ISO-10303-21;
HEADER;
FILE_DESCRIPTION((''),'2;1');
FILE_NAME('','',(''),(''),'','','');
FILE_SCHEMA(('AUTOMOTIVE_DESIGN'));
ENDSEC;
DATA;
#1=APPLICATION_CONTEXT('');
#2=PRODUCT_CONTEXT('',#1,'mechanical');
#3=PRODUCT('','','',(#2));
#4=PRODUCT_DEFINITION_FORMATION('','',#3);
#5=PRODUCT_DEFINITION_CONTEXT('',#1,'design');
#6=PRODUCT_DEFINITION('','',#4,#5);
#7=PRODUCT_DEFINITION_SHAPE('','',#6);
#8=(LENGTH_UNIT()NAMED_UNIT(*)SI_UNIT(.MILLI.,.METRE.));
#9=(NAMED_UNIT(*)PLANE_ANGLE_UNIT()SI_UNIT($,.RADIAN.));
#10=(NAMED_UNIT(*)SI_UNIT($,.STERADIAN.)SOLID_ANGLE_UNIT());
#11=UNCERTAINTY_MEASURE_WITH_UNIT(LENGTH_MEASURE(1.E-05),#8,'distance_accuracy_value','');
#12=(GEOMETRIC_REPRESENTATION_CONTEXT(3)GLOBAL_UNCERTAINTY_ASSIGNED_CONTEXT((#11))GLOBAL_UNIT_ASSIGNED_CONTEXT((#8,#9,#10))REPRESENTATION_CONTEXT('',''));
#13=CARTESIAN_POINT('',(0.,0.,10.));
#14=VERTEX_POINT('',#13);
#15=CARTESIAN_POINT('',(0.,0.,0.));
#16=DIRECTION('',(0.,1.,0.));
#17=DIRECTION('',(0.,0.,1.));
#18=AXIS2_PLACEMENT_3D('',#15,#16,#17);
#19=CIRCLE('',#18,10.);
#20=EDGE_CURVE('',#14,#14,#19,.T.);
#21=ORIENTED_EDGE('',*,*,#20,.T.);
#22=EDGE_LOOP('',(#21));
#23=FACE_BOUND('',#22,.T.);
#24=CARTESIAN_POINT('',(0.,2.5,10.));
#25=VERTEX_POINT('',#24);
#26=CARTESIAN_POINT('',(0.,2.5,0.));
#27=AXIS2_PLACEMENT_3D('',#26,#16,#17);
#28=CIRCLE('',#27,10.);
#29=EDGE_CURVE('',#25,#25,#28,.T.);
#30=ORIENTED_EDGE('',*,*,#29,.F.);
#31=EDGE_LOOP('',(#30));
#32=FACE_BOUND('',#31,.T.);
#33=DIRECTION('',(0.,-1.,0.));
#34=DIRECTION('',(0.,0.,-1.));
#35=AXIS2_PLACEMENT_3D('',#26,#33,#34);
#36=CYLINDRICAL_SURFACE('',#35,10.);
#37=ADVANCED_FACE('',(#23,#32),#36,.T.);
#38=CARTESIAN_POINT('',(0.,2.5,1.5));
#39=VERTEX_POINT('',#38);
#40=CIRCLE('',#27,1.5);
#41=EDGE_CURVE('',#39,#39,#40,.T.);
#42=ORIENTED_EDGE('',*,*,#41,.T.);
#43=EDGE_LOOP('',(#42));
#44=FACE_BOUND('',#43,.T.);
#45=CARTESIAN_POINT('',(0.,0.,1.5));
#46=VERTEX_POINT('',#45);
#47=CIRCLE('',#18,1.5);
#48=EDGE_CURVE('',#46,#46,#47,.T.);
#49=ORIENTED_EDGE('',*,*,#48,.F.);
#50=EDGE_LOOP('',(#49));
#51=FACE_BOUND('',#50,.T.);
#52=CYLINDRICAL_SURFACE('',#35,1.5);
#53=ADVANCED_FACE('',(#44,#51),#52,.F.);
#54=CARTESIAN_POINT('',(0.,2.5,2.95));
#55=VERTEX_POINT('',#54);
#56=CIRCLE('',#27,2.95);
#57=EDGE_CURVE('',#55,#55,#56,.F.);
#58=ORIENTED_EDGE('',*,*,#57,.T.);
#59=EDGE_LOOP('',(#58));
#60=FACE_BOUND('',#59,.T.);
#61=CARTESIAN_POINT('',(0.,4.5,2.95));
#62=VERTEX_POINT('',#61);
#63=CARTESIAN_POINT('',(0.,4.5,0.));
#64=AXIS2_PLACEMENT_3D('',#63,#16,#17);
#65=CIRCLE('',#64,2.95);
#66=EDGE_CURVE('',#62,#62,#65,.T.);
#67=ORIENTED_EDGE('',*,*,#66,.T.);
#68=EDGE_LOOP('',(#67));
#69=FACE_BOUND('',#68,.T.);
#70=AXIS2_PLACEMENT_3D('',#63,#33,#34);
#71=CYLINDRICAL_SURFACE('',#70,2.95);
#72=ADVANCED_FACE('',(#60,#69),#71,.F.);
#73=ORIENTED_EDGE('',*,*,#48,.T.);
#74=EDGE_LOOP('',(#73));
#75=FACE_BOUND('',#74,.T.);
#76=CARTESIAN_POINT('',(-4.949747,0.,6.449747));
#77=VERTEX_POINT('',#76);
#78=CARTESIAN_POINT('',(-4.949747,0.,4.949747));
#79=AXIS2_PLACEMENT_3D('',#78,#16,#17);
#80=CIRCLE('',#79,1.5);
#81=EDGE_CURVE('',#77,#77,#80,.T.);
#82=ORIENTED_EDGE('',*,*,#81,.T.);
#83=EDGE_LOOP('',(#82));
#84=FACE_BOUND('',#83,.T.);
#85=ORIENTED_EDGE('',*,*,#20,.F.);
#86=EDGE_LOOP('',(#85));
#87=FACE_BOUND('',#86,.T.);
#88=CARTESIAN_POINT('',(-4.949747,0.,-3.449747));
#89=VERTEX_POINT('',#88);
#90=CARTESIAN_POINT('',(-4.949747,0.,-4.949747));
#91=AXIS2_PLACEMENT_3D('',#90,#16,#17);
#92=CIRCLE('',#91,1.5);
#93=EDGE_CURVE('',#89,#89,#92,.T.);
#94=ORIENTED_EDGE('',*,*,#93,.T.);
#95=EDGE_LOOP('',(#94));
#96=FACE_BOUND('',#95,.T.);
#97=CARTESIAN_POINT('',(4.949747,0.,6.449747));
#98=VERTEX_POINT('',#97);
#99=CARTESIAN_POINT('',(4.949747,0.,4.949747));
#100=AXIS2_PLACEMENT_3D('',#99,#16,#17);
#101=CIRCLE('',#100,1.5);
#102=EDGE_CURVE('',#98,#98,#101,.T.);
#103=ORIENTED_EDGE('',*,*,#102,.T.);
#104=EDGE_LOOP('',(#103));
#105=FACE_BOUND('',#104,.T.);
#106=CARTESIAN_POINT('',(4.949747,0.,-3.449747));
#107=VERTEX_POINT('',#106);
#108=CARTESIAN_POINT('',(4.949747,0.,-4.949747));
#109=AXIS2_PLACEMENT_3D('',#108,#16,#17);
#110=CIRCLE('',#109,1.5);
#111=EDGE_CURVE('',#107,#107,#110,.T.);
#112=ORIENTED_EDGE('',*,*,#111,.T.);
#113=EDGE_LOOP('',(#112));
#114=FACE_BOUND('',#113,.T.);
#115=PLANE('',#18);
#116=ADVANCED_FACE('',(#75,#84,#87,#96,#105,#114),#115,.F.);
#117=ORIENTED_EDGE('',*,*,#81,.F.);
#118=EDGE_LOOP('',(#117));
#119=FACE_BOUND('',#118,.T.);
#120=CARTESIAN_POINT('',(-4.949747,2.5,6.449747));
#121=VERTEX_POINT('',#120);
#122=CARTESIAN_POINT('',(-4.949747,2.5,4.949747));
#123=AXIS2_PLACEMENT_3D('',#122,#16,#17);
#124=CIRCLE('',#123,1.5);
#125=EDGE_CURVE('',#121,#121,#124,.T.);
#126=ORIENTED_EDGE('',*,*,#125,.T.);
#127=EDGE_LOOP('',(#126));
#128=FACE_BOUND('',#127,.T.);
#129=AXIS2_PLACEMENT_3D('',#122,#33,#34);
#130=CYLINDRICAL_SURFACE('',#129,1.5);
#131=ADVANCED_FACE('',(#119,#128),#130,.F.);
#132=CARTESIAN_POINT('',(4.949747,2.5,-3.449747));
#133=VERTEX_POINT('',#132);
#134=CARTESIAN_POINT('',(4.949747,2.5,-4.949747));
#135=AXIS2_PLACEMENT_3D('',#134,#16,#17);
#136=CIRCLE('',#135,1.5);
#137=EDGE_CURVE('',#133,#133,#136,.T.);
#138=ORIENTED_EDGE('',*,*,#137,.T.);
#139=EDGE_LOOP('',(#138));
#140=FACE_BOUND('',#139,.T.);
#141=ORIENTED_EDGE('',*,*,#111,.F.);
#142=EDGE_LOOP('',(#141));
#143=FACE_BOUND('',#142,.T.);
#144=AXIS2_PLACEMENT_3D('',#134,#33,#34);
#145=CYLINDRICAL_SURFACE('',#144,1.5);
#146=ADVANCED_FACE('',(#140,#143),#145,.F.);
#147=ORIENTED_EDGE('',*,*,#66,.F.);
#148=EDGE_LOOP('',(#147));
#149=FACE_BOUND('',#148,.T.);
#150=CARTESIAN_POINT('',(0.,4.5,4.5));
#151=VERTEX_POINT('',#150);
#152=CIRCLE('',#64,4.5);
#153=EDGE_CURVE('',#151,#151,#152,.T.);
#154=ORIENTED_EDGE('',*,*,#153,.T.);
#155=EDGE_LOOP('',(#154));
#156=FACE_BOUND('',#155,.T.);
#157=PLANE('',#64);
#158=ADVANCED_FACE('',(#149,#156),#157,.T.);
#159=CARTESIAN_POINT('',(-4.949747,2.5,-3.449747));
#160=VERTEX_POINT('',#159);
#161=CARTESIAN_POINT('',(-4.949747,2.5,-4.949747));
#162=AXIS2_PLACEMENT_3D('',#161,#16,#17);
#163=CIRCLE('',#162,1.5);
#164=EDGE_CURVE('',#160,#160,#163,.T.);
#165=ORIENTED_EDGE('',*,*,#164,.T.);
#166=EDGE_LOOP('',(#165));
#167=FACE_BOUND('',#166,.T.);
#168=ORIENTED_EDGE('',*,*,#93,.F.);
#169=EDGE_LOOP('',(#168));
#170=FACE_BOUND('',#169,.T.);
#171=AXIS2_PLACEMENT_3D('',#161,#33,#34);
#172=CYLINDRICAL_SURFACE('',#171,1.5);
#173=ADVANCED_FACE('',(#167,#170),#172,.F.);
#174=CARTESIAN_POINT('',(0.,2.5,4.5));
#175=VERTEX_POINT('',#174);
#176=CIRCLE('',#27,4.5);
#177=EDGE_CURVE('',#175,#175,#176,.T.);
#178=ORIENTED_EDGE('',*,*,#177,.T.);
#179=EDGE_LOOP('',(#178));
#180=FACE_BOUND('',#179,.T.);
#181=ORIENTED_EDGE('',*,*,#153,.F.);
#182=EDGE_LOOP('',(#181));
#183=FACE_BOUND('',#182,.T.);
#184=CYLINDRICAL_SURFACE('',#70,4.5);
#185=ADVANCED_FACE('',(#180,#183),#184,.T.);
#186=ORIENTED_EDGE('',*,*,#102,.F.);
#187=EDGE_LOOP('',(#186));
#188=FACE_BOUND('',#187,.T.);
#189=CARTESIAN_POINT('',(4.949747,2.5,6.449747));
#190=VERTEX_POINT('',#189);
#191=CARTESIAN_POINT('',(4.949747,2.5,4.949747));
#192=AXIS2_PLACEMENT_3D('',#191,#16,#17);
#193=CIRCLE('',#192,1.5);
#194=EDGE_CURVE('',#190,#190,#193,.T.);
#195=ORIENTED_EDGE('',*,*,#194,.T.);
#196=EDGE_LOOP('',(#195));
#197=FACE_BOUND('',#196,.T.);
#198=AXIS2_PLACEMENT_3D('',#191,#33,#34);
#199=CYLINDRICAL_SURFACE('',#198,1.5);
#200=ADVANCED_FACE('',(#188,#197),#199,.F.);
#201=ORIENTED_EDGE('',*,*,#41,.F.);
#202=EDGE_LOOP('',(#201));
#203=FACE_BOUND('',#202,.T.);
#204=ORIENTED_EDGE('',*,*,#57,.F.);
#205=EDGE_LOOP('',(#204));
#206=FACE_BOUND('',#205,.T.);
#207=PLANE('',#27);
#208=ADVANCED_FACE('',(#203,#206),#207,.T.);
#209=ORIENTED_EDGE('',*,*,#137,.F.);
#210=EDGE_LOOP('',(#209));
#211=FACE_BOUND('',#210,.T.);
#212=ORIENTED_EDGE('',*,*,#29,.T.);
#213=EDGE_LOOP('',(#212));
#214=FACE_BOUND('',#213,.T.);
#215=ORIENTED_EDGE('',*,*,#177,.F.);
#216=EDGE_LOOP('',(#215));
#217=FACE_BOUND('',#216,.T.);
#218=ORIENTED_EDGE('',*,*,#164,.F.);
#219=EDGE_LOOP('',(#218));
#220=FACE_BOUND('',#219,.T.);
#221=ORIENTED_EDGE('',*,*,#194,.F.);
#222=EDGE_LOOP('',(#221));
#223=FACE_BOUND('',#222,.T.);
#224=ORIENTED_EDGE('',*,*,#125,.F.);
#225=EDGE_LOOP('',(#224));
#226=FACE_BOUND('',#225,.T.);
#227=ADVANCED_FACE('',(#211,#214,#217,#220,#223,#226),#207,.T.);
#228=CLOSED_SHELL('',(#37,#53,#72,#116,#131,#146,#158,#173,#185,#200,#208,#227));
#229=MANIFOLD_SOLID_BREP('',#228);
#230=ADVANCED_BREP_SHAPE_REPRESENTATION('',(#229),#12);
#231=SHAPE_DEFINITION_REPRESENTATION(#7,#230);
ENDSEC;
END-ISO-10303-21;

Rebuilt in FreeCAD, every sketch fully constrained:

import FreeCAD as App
import Part
import Sketcher

doc = App.newDocument("Part")
params = doc.addObject("Spreadsheet::Sheet", "Params")
for row, (alias, value) in enumerate([
    ("sketch1_diameter", "20 mm"),
    ("sketch1_diameter2", "3 mm"),
    ("pad1_length", "2.5 mm"),
    ("sketch2_diameter", "9 mm"),
    ("sketch2_diameter2", "5.9 mm"),
    ("pad2_length", "2 mm"),
], start=1):
    params.set(f"A{row}", alias)
    params.set(f"B{row}", "=" + value)
    params.setAlias(f"B{row}", alias)

body = doc.addObject("PartDesign::Body", "Body")

# Sketch on XZ plane
sketch1 = body.newObject("Sketcher::SketchObject", "Sketch")
sketch1.AttachmentSupport = (doc.getObject("XZ_Plane"), [""])
sketch1.MapMode = "FlatFace"
sketch1.addGeometry(Part.Circle(App.Vector(0, 0, 0), App.Vector(0, 0, 1), 10), False)
sketch1.addGeometry(Part.Circle(App.Vector(-4.949747, -4.949747, 0), App.Vector(0, 0, 1), 1.5), False)
sketch1.addGeometry(Part.Circle(App.Vector(-4.949747, 4.949747, 0), App.Vector(0, 0, 1), 1.5), False)
sketch1.addGeometry(Part.Circle(App.Vector(0, 0, 0), App.Vector(0, 0, 1), 1.5), False)
sketch1.addGeometry(Part.Circle(App.Vector(4.949747, -4.949747, 0), App.Vector(0, 0, 1), 1.5), False)
sketch1.addGeometry(Part.Circle(App.Vector(4.949747, 4.949747, 0), App.Vector(0, 0, 1), 1.5), False)
sketch1.addConstraint(Sketcher.Constraint("Coincident", 0, 3, -1, 1))
sketch1.addConstraint(Sketcher.Constraint("Coincident", 3, 3, -1, 1))
sketch1.addConstraint(Sketcher.Constraint("Equal", 1, 2))
sketch1.addConstraint(Sketcher.Constraint("Equal", 2, 3))
sketch1.addConstraint(Sketcher.Constraint("Equal", 3, 4))
sketch1.addConstraint(Sketcher.Constraint("Equal", 4, 5))
sketch1.addConstraint(Sketcher.Constraint("Symmetric", 2, 3, 4, 3, -1, 1))
sketch1.addConstraint(Sketcher.Constraint("Symmetric", 1, 3, 5, 3, -1, 1))
sketch1.addConstraint(Sketcher.Constraint("Symmetric", 1, 3, 4, 3, -2))
sketch1.addConstraint(Sketcher.Constraint("Diameter", 0, 20.0))
sketch1.addConstraint(Sketcher.Constraint("Diameter", 1, 3.0))
sketch1.addConstraint(Sketcher.Constraint("DistanceX", 1, 3, -1, 1, 4.949747))
sketch1.addConstraint(Sketcher.Constraint("DistanceY", 1, 3, -1, 1, 4.949747))
sketch1.setExpression("Constraints[9]", "Params.sketch1_diameter")
sketch1.setExpression("Constraints[10]", "Params.sketch1_diameter2")
pad1 = body.newObject("PartDesign::Pad", "Pad")
pad1.Profile = sketch1
pad1.setExpression("Length", "Params.pad1_length")
pad1.Reversed = True

# Sketch on XZ plane
sketch2 = body.newObject("Sketcher::SketchObject", "Sketch001")
sketch2.AttachmentSupport = (doc.getObject("XZ_Plane"), [""])
sketch2.MapMode = "FlatFace"
sketch2.AttachmentOffset = App.Placement(App.Vector(0, 0, -2.5), App.Rotation())
sketch2.addGeometry(Part.Circle(App.Vector(0, 0, 0), App.Vector(0, 0, 1), 4.5), False)
sketch2.addGeometry(Part.Circle(App.Vector(0, 0, 0), App.Vector(0, 0, 1), 2.95), False)
sketch2.addConstraint(Sketcher.Constraint("Coincident", 0, 3, -1, 1))
sketch2.addConstraint(Sketcher.Constraint("Coincident", 1, 3, -1, 1))
sketch2.addConstraint(Sketcher.Constraint("Diameter", 0, 9.0))
sketch2.addConstraint(Sketcher.Constraint("Diameter", 1, 5.9))
sketch2.setExpression("Constraints[2]", "Params.sketch2_diameter")
sketch2.setExpression("Constraints[3]", "Params.sketch2_diameter2")
pad2 = body.newObject("PartDesign::Pad", "Pad001")
pad2.Profile = sketch2
pad2.setExpression("Length", "Params.pad2_length")
pad2.Reversed = True

doc.recompute()
